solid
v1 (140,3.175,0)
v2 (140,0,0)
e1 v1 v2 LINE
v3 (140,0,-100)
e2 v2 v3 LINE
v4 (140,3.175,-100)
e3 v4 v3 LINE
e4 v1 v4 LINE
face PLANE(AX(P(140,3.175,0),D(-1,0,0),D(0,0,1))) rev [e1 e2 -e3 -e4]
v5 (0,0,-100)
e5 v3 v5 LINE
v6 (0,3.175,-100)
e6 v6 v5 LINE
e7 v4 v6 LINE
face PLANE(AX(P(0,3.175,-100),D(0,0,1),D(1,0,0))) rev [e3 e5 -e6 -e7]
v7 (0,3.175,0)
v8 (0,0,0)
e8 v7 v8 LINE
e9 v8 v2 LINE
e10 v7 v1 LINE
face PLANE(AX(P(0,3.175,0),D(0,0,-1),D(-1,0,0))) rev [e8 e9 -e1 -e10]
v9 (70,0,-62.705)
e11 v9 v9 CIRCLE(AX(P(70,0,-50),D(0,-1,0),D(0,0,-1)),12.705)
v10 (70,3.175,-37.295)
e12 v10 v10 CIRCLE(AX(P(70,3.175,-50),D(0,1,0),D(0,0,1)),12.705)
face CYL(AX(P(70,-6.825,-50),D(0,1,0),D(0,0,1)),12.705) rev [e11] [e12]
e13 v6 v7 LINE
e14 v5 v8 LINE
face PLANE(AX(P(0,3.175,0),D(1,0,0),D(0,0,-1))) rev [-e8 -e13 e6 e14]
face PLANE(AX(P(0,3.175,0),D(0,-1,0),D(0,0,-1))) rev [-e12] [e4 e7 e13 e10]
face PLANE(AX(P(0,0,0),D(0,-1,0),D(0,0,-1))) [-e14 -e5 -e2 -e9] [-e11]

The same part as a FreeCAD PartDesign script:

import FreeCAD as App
import Part
import Sketcher
from FreeCAD import Vector
Q = App.Units.Quantity

doc = App.newDocument("Part")
body = doc.addObject("PartDesign::Body", "Body")

# Sketch on XZ plane
sketch1 = body.newObject("Sketcher::SketchObject", "Sketch")
sketch1.AttachmentSupport = (doc.getObject("XZ_Plane"), [""])
sketch1.MapMode = "FlatFace"
sketch1.addGeometry([
    Part.LineSegment(Vector(0, -100, 0), Vector(0, 0, 0)),
    Part.LineSegment(Vector(0, 0, 0), Vector(140, 0, 0)),
    Part.LineSegment(Vector(140, 0, 0), Vector(140, -100, 0)),
    Part.LineSegment(Vector(140, -100, 0), Vector(0, -100, 0)),
], False)
sketch1.addConstraint([
    Sketcher.Constraint("Coincident", 0, 2, 1, 1),
    Sketcher.Constraint("Coincident", 1, 2, 2, 1),
    Sketcher.Constraint("Coincident", 2, 2, 3, 1),
    Sketcher.Constraint("Coincident", 3, 2, 0, 1),
    Sketcher.Constraint("Vertical", 0),
    Sketcher.Constraint("Horizontal", 1),
    Sketcher.Constraint("Vertical", 2),
    Sketcher.Constraint("Horizontal", 3),
    Sketcher.Constraint("Coincident", 0, 2, -1, 1),
    Sketcher.Constraint("DistanceX", 1, 1, 1, 2, Q("140 mm")),
    Sketcher.Constraint("DistanceY", 0, 1, 0, 2, Q("100 mm")),
])
pad1 = body.newObject("PartDesign::Pad", "Pad")
pad1.Profile = sketch1
pad1.Length = 3.175
pad1.Reversed = True

# Sketch on XZ plane
sketch2 = body.newObject("Sketcher::SketchObject", "Sketch001")
sketch2.AttachmentSupport = (doc.getObject("XZ_Plane"), [""])
sketch2.MapMode = "FlatFace"
sketch2.AttachmentOffset = App.Placement(Vector(0, 0, -3.175), App.Rotation())
sketch2.addGeometry(Part.Circle(Vector(70, -50, 0), Vector(0, 0, 1), 13), False)
sketch2.addConstraint([
    Sketcher.Constraint("Diameter", 0, Q("25.41 mm")),
    Sketcher.Constraint("DistanceX", -1, 1, 0, 3, Q("70 mm")),
    Sketcher.Constraint("DistanceY", 0, 3, -1, 1, Q("50 mm")),
])
pocket1 = body.newObject("PartDesign::Pocket", "Pocket")
pocket1.Profile = sketch2
pocket1.Length = 10
pocket1.Reversed = True

doc.recompute()
